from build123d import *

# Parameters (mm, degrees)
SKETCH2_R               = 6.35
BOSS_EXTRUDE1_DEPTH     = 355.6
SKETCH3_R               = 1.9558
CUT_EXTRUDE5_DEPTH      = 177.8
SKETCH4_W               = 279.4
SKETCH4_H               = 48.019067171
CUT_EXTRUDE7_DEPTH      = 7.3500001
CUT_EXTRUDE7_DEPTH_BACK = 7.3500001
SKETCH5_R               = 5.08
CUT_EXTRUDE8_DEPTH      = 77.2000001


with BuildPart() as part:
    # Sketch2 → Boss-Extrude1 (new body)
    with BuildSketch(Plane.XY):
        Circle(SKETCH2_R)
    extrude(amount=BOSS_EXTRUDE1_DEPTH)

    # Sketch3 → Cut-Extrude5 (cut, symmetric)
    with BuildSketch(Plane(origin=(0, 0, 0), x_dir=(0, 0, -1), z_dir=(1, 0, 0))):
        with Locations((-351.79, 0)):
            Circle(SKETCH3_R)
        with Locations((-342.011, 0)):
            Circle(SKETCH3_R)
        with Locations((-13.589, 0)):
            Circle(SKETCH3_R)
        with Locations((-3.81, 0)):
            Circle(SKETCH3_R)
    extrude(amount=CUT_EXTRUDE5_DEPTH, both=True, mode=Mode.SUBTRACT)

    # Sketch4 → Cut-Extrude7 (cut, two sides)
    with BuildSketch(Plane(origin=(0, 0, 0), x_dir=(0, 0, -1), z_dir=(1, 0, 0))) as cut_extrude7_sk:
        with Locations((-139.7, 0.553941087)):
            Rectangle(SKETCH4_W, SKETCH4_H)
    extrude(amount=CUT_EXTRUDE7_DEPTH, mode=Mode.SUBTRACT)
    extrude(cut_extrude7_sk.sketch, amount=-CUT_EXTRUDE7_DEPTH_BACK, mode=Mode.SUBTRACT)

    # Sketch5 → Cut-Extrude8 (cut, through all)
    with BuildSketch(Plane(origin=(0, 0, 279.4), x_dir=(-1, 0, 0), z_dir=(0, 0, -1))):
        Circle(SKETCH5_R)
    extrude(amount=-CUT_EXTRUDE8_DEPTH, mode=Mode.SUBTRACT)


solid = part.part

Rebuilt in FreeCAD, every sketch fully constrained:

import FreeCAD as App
import Part
import Sketcher

V = App.Vector
Q = App.Units.Quantity


def add_polygon(sketch, points):
    """Adds a closed chain of lines whose ends are joined by coincident constraints."""
    first, n = sketch.GeometryCount, len(points)
    for a, b in zip(points, points[1:] + points[:1]):
        sketch.addGeometry(Part.LineSegment(App.Vector(*a, 0), App.Vector(*b, 0)), False)
    for i in range(n):
        sketch.addConstraint(Sketcher.Constraint("Coincident", first + i, 2, first + (i + 1) % n, 1))

doc = App.newDocument("Part")
body = doc.addObject("PartDesign::Body", "Body")

# Sketch on XY plane
sketch1 = body.newObject("Sketcher::SketchObject", "Sketch")
sketch1.AttachmentSupport = (doc.getObject("XY_Plane"), [""])
sketch1.MapMode = "FlatFace"
sketch1.addGeometry(Part.Circle(V(0, 0, 0), V(0, 0, 1), 6), False)
sketch1.addConstraint([
    Sketcher.Constraint("Coincident", 0, 3, -1, 1),
    Sketcher.Constraint("Diameter", 0, Q("0.5 in")),
])
pad1 = body.newObject("PartDesign::Pad", "Pad")
pad1.Profile = sketch1
pad1.Length = Q("14 in")

# Sketch on YZ plane
sketch2 = body.newObject("Sketcher::SketchObject", "Sketch001")
sketch2.AttachmentSupport = (doc.getObject("YZ_Plane"), [""])
sketch2.MapMode = "FlatFace"
sketch2.addGeometry([
    Part.Circle(V(0, 351.8, 0), V(0, 0, 1), 2),
    Part.Circle(V(0, 342, 0), V(0, 0, 1), 2),
    Part.Circle(V(0, 13.6, 0), V(0, 0, 1), 2),
    Part.Circle(V(0, 3.8, 0), V(0, 0, 1), 2),
], False)
sketch2.addConstraint([
    Sketcher.Constraint("Equal", 0, 1),
    Sketcher.Constraint("Equal", 1, 2),
    Sketcher.Constraint("Equal", 2, 3),
    Sketcher.Constraint("PointOnObject", 0, 3, -2),
    Sketcher.Constraint("PointOnObject", 1, 3, -2),
    Sketcher.Constraint("PointOnObject", 2, 3, -2),
    Sketcher.Constraint("PointOnObject", 3, 3, -2),
    Sketcher.Constraint("Diameter", 0, Q("0.154 in")),
    Sketcher.Constraint("DistanceY", 3, 3, 0, 3, Q("13.7 in")),
    Sketcher.Constraint("DistanceY", -1, 1, 0, 3, Q("13.85 in")),
    Sketcher.Constraint("DistanceY", 2, 3, 1, 3, Q("12.93 in")),
    Sketcher.Constraint("DistanceY", -1, 1, 1, 3, Q("13.465 in")),
])
pocket1 = body.newObject("PartDesign::Pocket", "Pocket")
pocket1.Profile = sketch2
pocket1.Length = Q("14 in")
pocket1.Midplane = True

# Sketch on YZ plane
sketch3 = body.newObject("Sketcher::SketchObject", "Sketch002")
sketch3.AttachmentSupport = (doc.getObject("YZ_Plane"), [""])
sketch3.MapMode = "FlatFace"
add_polygon(sketch3, [(25, 279), (-23, 279), (-23, 0), (25, 0)])  # lines 0-3
sketch3.addConstraint([
    Sketcher.Constraint("Horizontal", 0),
    Sketcher.Constraint("Vertical", 1),
    Sketcher.Constraint("Horizontal", 2),
    Sketcher.Constraint("Vertical", 3),
    Sketcher.Constraint("PointOnObject", 1, 2, -1),
    Sketcher.Constraint("DistanceY", 1, 2, 1, 1, Q("11 in")),
    Sketcher.Constraint("DistanceX", 0, 2, 0, 1, Q("48.019067 mm")),
    Sketcher.Constraint("DistanceX", 0, 2, -1, 1, Q("23.455592 mm")),
])
pocket2 = body.newObject("PartDesign::Pocket", "Pocket001")
pocket2.Profile = sketch3
pocket2.Type = "ThroughAll"
pocket2.Midplane = True

# Sketch on XY plane
sketch4 = body.newObject("Sketcher::SketchObject", "Sketch003")
sketch4.AttachmentSupport = (doc.getObject("XY_Plane"), [""])
sketch4.MapMode = "FlatFace"
sketch4.AttachmentOffset = App.Placement(V(0, 0, 11 * 25.4), App.Rotation())
sketch4.addGeometry(Part.Circle(V(0, 0, 0), V(0, 0, 1), 5), False)
sketch4.addConstraint([
    Sketcher.Constraint("Coincident", 0, 3, -1, 1),
    Sketcher.Constraint("Diameter", 0, Q("0.4 in")),
])
pocket3 = body.newObject("PartDesign::Pocket", "Pocket002")
pocket3.Profile = sketch4
pocket3.Type = "ThroughAll"
pocket3.Reversed = True

doc.recompute()
